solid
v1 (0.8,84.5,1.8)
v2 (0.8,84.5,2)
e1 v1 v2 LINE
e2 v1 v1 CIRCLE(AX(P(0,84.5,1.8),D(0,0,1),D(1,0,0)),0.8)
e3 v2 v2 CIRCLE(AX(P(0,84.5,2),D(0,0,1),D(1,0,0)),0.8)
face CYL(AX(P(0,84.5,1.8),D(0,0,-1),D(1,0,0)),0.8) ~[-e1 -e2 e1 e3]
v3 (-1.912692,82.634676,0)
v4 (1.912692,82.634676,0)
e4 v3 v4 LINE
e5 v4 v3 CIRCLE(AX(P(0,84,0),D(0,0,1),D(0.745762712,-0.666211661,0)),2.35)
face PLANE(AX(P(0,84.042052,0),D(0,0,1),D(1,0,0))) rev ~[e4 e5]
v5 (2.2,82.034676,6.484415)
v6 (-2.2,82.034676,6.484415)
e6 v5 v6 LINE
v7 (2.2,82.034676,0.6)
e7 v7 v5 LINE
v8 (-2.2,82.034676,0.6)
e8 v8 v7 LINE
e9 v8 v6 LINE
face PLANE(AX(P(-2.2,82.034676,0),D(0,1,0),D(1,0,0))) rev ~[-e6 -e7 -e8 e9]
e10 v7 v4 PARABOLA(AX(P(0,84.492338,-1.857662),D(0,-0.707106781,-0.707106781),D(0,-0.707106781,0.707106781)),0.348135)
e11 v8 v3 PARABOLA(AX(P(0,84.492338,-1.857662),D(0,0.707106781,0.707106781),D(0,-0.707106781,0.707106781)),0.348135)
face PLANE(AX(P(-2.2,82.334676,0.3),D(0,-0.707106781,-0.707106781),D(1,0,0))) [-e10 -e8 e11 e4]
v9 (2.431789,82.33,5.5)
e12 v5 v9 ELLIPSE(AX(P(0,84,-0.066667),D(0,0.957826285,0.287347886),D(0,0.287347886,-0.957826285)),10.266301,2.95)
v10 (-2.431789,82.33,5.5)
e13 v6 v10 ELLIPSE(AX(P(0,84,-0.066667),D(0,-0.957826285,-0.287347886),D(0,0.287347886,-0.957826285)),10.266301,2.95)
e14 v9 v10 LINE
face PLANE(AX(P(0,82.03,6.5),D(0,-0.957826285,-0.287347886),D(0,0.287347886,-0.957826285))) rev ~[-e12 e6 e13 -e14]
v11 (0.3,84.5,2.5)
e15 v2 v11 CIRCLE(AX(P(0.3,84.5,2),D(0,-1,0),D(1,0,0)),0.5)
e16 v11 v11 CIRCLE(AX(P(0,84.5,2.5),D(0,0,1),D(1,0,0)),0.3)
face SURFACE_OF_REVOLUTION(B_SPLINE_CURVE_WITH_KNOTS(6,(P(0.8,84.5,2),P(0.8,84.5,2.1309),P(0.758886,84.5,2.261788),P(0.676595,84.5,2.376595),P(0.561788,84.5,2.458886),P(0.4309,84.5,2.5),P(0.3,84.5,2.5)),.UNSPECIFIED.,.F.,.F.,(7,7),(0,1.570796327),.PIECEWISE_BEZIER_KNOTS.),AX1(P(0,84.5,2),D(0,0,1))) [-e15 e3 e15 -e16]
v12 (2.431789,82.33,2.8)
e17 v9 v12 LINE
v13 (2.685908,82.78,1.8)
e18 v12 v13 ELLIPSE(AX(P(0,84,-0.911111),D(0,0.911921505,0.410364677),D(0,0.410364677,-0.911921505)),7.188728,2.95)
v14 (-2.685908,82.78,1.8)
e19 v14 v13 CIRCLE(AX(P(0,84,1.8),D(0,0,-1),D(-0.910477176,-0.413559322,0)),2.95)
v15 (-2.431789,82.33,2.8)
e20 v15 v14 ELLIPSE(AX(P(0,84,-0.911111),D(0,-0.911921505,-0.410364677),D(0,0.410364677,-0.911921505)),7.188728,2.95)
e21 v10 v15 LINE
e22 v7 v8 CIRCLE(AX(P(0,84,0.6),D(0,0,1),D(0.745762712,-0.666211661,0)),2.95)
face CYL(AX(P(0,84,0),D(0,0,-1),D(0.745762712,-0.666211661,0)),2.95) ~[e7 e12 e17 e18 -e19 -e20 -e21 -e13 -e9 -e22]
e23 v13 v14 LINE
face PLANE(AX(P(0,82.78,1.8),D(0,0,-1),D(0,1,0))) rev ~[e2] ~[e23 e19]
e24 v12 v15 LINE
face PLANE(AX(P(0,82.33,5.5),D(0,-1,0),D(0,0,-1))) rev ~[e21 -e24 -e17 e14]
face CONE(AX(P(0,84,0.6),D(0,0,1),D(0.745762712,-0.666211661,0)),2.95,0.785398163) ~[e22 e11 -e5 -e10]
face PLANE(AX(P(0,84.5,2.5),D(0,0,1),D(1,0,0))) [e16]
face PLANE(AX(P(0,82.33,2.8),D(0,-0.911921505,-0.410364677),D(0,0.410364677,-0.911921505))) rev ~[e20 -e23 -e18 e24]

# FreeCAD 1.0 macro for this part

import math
import FreeCAD as App
import Part
import Sketcher


def edges_at(feature, points):
    """Names of the edges that pass closest to the given points."""
    edges = feature.Shape.Edges
    near = lambda p: min(range(len(edges)), key=lambda i: edges[i].distToShape(Part.Vertex(*p))[0])
    return sorted({f"Edge{near(p) + 1}" for p in points})


def add_polygon(sketch, points):
    """Adds a closed chain of lines whose ends are joined by coincident constraints."""
    first, n = sketch.GeometryCount, len(points)
    for a, b in zip(points, points[1:] + points[:1]):
        sketch.addGeometry(Part.LineSegment(App.Vector(*a, 0), App.Vector(*b, 0)), False)
    for i in range(n):
        sketch.addConstraint(Sketcher.Constraint("Coincident", first + i, 2, first + (i + 1) % n, 1))

doc = App.newDocument("Part")
body = doc.addObject("PartDesign::Body", "Body")

# Sketch on XY plane
sketch1 = body.newObject("Sketcher::SketchObject", "Sketch")
sketch1.AttachmentSupport = (doc.getObject("XY_Plane"), [""])
sketch1.MapMode = "FlatFace"
sketch1.addGeometry(Part.ArcOfCircle(Part.Circle(App.Vector(0, 0, 0), App.Vector(0, 0, 1), 3), math.radians(-42), math.radians(222)), False)
sketch1.addGeometry(Part.LineSegment(App.Vector(-2.2, -2, 0), App.Vector(2.2, -2, 0)), False)
sketch1.addConstraint(Sketcher.Constraint("Coincident", 0, 1, 1, 2))
sketch1.addConstraint(Sketcher.Constraint("Coincident", 1, 1, 0, 2))
sketch1.addConstraint(Sketcher.Constraint("Horizontal", 1))
sketch1.addConstraint(Sketcher.Constraint("Coincident", 0, 3, -1, 1))
sketch1.addConstraint(Sketcher.Constraint("Radius", 0, 2.95))
sketch1.addConstraint(Sketcher.Constraint("DistanceX", 1, 1, 1, 2, 4.4))
pad1 = body.newObject("PartDesign::Pad", "Pad")
pad1.Profile = sketch1
pad1.Length = 6.5

# Sketch on YZ plane
sketch2 = body.newObject("Sketcher::SketchObject", "Sketch001")
sketch2.AttachmentSupport = (doc.getObject("YZ_Plane"), [""])
sketch2.MapMode = "FlatFace"
add_polygon(sketch2, [(-2, 6.5), (-1.7, 5.5), (-1.7, 2.8), (-1.2, 1.8), (4, 1.8), (4, 6.5)])  # lines 0-5
sketch2.addConstraint(Sketcher.Constraint("Vertical", 1))
sketch2.addConstraint(Sketcher.Constraint("Horizontal", 3))
sketch2.addConstraint(Sketcher.Constraint("Vertical", 4))
sketch2.addConstraint(Sketcher.Constraint("Horizontal", 5))
sketch2.addConstraint(Sketcher.Constraint("DistanceY", 1, 2, 1, 1, 2.7))
sketch2.addConstraint(Sketcher.Constraint("DistanceY", 4, 1, 4, 2, 4.7))
sketch2.addConstraint(Sketcher.Constraint("DistanceX", -1, 1, 3, 2, 4.0))
sketch2.addConstraint(Sketcher.Constraint("DistanceY", 2, 2, 1, 2, 1.0))
sketch2.addConstraint(Sketcher.Constraint("DistanceX", 3, 1, 3, 2, 5.22))
sketch2.addConstraint(Sketcher.Constraint("DistanceX", 5, 2, 5, 1, 5.97))
sketch2.addConstraint(Sketcher.Constraint("DistanceY", -1, 1, 0, 2, 5.5))
sketch2.addConstraint(Sketcher.Constraint("DistanceX", 5, 2, 0, 2, 0.3))
pocket1 = body.newObject("PartDesign::Pocket", "Pocket")
pocket1.Profile = sketch2
pocket1.Type = "ThroughAll"
pocket1.Midplane = True

# Sketch on XY plane
sketch3 = body.newObject("Sketcher::SketchObject", "Sketch002")
sketch3.AttachmentSupport = (doc.getObject("XY_Plane"), [""])
sketch3.MapMode = "FlatFace"
sketch3.AttachmentOffset = App.Placement(App.Vector(0, 0, 1.8), App.Rotation())
sketch3.addGeometry(Part.Circle(App.Vector(0, 0.5, 0), App.Vector(0, 0, 1), 0.8), False)
sketch3.addConstraint(Sketcher.Constraint("PointOnObject", 0, 3, -2))
sketch3.addConstraint(Sketcher.Constraint("Diameter", 0, 1.6))
sketch3.addConstraint(Sketcher.Constraint("DistanceY", -1, 1, 0, 3, 0.5))
pad2 = body.newObject("PartDesign::Pad", "Pad001")
pad2.Profile = sketch3
pad2.Length = 0.7
doc.recompute()

fillet = body.newObject("PartDesign::Fillet", "Fillet")
fillet.Base = (pad2, edges_at(pad2, [(-0.8, 0.5, 2.5)]))
fillet.Radius = 0.5
doc.recompute()

chamfer = body.newObject("PartDesign::Chamfer", "Chamfer")
chamfer.Base = (fillet, edges_at(fillet, [(0, 2.95, 0), (0, -1.965, 0)]))
chamfer.Size = 0.6
body2 = doc.addObject("PartDesign::Body", "Body001")
doc.recompute()

body.Placement = App.Placement(App.Vector(0, 84, 0), App.Rotation(App.Vector(0, 0, 1), 0))
boolean = body2.newObject("PartDesign::Boolean", "Boolean")
boolean.Type = "Fuse"
boolean.addObjects([body])

doc.recompute()
